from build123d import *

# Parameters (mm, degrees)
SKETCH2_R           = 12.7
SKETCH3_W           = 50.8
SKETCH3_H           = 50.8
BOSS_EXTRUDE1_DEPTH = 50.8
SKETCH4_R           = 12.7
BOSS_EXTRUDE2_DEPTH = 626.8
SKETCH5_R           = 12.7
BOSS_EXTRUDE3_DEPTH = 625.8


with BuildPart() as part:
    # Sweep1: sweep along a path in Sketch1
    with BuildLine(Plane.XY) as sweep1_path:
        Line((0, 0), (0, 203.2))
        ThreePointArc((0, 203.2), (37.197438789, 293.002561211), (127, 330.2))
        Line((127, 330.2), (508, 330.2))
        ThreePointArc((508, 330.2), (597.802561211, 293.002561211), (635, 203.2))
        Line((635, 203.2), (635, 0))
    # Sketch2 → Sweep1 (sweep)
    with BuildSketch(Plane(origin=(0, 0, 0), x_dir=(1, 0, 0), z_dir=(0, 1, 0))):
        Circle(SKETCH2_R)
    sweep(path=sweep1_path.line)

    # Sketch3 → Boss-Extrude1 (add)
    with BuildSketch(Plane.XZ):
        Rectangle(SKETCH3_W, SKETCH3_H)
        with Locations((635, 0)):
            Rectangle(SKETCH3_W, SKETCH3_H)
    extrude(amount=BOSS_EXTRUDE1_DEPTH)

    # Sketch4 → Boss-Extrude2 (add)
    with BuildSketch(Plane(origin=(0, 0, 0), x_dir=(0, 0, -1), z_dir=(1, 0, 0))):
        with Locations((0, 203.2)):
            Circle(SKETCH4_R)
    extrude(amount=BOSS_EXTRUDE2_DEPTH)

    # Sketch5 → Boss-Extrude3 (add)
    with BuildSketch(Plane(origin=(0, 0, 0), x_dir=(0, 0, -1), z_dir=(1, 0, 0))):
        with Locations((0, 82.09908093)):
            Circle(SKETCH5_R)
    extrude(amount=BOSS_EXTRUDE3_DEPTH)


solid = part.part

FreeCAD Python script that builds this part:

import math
import FreeCAD as App
import Part
import Sketcher

V = App.Vector
Q = App.Units.Quantity


def add_polygon(sketch, points):
    """Adds a closed chain of lines whose ends are joined by coincident constraints."""
    first, n = sketch.GeometryCount, len(points)
    for a, b in zip(points, points[1:] + points[:1]):
        sketch.addGeometry(Part.LineSegment(App.Vector(*a, 0), App.Vector(*b, 0)), False)
    for i in range(n):
        sketch.addConstraint(Sketcher.Constraint("Coincident", first + i, 2, first + (i + 1) % n, 1))

doc = App.newDocument("Part")
body = doc.addObject("PartDesign::Body", "Body")

sketch1 = body.newObject("Sketcher::SketchObject", "Sketch")
sketch1.AttachmentSupport = (doc.getObject("XZ_Plane"), [""])
sketch1.MapMode = "FlatFace"
sketch1.addGeometry(Part.Circle(V(0, 0, 0), V(0, 0, 1), 12.7), False)
sketch1.addConstraint([
    Sketcher.Constraint("Coincident", 0, 3, -1, 1),
    Sketcher.Constraint("Diameter", 0, Q("1 in")),
])

sketch2 = body.newObject("Sketcher::SketchObject", "Sketch001")
sketch2.AttachmentSupport = (doc.getObject("XY_Plane"), [""])
sketch2.MapMode = "FlatFace"
sketch2.addGeometry([
    Part.LineSegment(V(0, 0, 0), V(0, 203.2, 0)),
    Part.ArcOfCircle(Part.Circle(V(127, 203.2, 0), V(0, 0, 1), 127), math.radians(90), math.radians(180)),
    Part.LineSegment(V(127, 330.2, 0), V(508, 330.2, 0)),
    Part.ArcOfCircle(Part.Circle(V(508, 203.2, 0), V(0, 0, 1), 127), math.radians(0), math.radians(90)),
    Part.LineSegment(V(635, 203.2, 0), V(635, 0, 0)),
], False)
sketch2.addConstraint([
    Sketcher.Constraint("Tangent", 0, 2, 1, 2),
    Sketcher.Constraint("Tangent", 1, 1, 2, 1),
    Sketcher.Constraint("Tangent", 2, 2, 3, 2),
    Sketcher.Constraint("Tangent", 3, 1, 4, 1),
    Sketcher.Constraint("Vertical", 0),
    Sketcher.Constraint("Horizontal", 2),
    Sketcher.Constraint("Vertical", 4),
    Sketcher.Constraint("Coincident", 0, 1, -1, 1),
    Sketcher.Constraint("Equal", 1, 3),
    Sketcher.Constraint("PointOnObject", 4, 2, -1),
    Sketcher.Constraint("Radius", 1, Q("5 in")),
    Sketcher.Constraint("DistanceX", 2, 1, 2, 2, Q("15 in")),
    Sketcher.Constraint("DistanceY", 0, 1, 0, 2, Q("8 in")),
])
doc.recompute()

additivepipe = body.newObject("PartDesign::AdditivePipe", "AdditivePipe")
additivepipe.Profile = sketch1
additivepipe.Spine = (sketch2, ["Edge1", "Edge2", "Edge3", "Edge4", "Edge5"])

sketch3 = body.newObject("Sketcher::SketchObject", "Sketch002")
sketch3.AttachmentSupport = (doc.getObject("XZ_Plane"), [""])
sketch3.MapMode = "FlatFace"
add_polygon(sketch3, [(-25.4, 25.4), (-25.4, -25.4), (25.4, -25.4), (25.4, 25.4)])
add_polygon(sketch3, [(609.6, 25.4), (609.6, -25.4), (660.4, -25.4), (660.4, 25.4)])
sketch3.addConstraint([
    Sketcher.Constraint("Vertical", 0),
    Sketcher.Constraint("Horizontal", 1),
    Sketcher.Constraint("Vertical", 2),
    Sketcher.Constraint("Horizontal", 3),
    Sketcher.Constraint("Vertical", 4),
    Sketcher.Constraint("Horizontal", 5),
    Sketcher.Constraint("Vertical", 6),
    Sketcher.Constraint("Horizontal", 7),
    Sketcher.Constraint("Symmetric", 0, 2, 2, 2, -1, 1),
    Sketcher.Constraint("Horizontal", 1, 2, 4, 2),
    Sketcher.Constraint("Horizontal", 3, 2, 6, 2),
    Sketcher.Constraint("Equal", 3, 5),
    Sketcher.Constraint("Equal", 7, 0),
    Sketcher.Constraint("DistanceX", 1, 1, 1, 2, Q("2 in")),
    Sketcher.Constraint("DistanceX", -1, 1, 4, 2, Q("24 in")),
])
pad1 = body.newObject("PartDesign::Pad", "Pad")
pad1.Profile = sketch3
pad1.Length = Q("2 in")

sketch4 = body.newObject("Sketcher::SketchObject", "Sketch003")
sketch4.AttachmentSupport = (doc.getObject("YZ_Plane"), [""])
sketch4.MapMode = "FlatFace"
sketch4.addGeometry(Part.Circle(V(203.2, 0, 0), V(0, 0, 1), 12.7), False)
sketch4.addConstraint([
    Sketcher.Constraint("PointOnObject", 0, 3, -1),
    Sketcher.Constraint("Diameter", 0, Q("1 in")),
    Sketcher.Constraint("DistanceX", -1, 1, 0, 3, Q("8 in")),
])
pad2 = body.newObject("PartDesign::Pad", "Pad001")
pad2.Profile = sketch4
pad2.Length = 626.8

sketch5 = body.newObject("Sketcher::SketchObject", "Sketch004")
sketch5.AttachmentSupport = (doc.getObject("YZ_Plane"), [""])
sketch5.MapMode = "FlatFace"
sketch5.addGeometry(Part.Circle(V(82.099081, 0, 0), V(0, 0, 1), 12.7), False)
sketch5.addConstraint([
    Sketcher.Constraint("PointOnObject", 0, 3, -1),
    Sketcher.Constraint("Diameter", 0, Q("1 in")),
    Sketcher.Constraint("DistanceX", -1, 1, 0, 3, Q("82.099081 mm")),
])
pad3 = body.newObject("PartDesign::Pad", "Pad002")
pad3.Profile = sketch5
pad3.Length = 625.8

doc.recompute()
